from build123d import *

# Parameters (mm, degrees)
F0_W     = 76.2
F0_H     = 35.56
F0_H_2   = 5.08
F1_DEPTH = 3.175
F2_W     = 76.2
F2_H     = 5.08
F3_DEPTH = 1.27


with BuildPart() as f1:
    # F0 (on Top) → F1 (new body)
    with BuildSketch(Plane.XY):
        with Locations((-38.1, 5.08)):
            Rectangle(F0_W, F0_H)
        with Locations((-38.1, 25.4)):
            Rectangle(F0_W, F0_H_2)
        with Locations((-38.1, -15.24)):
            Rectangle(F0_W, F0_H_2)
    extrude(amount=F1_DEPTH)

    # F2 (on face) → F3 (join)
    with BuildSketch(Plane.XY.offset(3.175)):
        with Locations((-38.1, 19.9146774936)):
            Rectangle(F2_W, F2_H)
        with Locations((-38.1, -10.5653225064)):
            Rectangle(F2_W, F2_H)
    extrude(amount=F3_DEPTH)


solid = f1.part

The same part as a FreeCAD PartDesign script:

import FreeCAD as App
import Part
import Sketcher

V = App.Vector
Q = App.Units.Quantity


def add_polygon(sketch, points):
    """Adds a closed chain of lines whose ends are joined by coincident constraints."""
    first, n = sketch.GeometryCount, len(points)
    for a, b in zip(points, points[1:] + points[:1]):
        sketch.addGeometry(Part.LineSegment(App.Vector(*a, 0), App.Vector(*b, 0)), False)
    for i in range(n):
        sketch.addConstraint(Sketcher.Constraint("Coincident", first + i, 2, first + (i + 1) % n, 1))

doc = App.newDocument("Part")
body = doc.addObject("PartDesign::Body", "Body")

# Sketch on XY plane
sketch1 = doc.addObject("Sketcher::SketchObject", "Sketch")
body.addObject(sketch1)
sketch1.AttachmentSupport = (doc.XY_Plane, [""])
sketch1.MapMode = "FlatFace"
add_polygon(sketch1, [(0, 28), (-76, 28), (-76, -18), (0, -18)])  # lines 0-3
sketch1.addConstraint([
    Sketcher.Constraint("Horizontal", 0),
    Sketcher.Constraint("Vertical", 1),
    Sketcher.Constraint("Horizontal", 2),
    Sketcher.Constraint("Vertical", 3),
    Sketcher.Constraint("PointOnObject", 2, 2, -2),
    Sketcher.Constraint("DistanceX", 0, 2, 0, 1, Q("3 in")),
    Sketcher.Constraint("DistanceY", 1, 2, 1, 1, Q("1.8 in")),
    Sketcher.Constraint("DistanceY", -1, 1, 0, 2, Q("1.1 in")),
])
pad1 = doc.addObject("PartDesign::Pad", "Pad")
body.addObject(pad1)
pad1.Profile = sketch1
pad1.Length = Q("0.125 in")

# Sketch on XY plane
sketch2 = doc.addObject("Sketcher::SketchObject", "Sketch001")
body.addObject(sketch2)
sketch2.AttachmentSupport = (doc.XY_Plane, [""])
sketch2.MapMode = "FlatFace"
sketch2.AttachmentOffset = App.Placement(V(0, 0, 0.125 * 25.4), App.Rotation())
add_polygon(sketch2, [(-76, 22), (-76, 17), (0, 17), (0, 22)])  # lines 0-3
add_polygon(sketch2, [(-76, -8), (-76, -13), (0, -13), (0, -8)])  # lines 4-7
sketch2.addConstraint([
    Sketcher.Constraint("Vertical", 0),
    Sketcher.Constraint("Horizontal", 1),
    Sketcher.Constraint("Vertical", 2),
    Sketcher.Constraint("Horizontal", 3),
    Sketcher.Constraint("Vertical", 4),
    Sketcher.Constraint("Horizontal", 5),
    Sketcher.Constraint("Vertical", 6),
    Sketcher.Constraint("Horizontal", 7),
    Sketcher.Constraint("PointOnObject", 1, 2, -2),
    Sketcher.Constraint("PointOnObject", 5, 2, -2),
    Sketcher.Constraint("Vertical", 3, 2, 4, 2),
    Sketcher.Constraint("Equal", 2, 4),
    Sketcher.Constraint("DistanceX", 1, 1, 1, 2, Q("3 in")),
    Sketcher.Constraint("DistanceY", 0, 2, 0, 1, Q("0.2 in")),
    Sketcher.Constraint("DistanceY", 6, 2, 1, 2, Q("1 in")),
    Sketcher.Constraint("DistanceY", -1, 1, 0, 2, Q("17.374677 mm")),
])
pad2 = doc.addObject("PartDesign::Pad", "Pad001")
body.addObject(pad2)
pad2.Profile = sketch2
pad2.Length = Q("0.05 in")

doc.recompute()
